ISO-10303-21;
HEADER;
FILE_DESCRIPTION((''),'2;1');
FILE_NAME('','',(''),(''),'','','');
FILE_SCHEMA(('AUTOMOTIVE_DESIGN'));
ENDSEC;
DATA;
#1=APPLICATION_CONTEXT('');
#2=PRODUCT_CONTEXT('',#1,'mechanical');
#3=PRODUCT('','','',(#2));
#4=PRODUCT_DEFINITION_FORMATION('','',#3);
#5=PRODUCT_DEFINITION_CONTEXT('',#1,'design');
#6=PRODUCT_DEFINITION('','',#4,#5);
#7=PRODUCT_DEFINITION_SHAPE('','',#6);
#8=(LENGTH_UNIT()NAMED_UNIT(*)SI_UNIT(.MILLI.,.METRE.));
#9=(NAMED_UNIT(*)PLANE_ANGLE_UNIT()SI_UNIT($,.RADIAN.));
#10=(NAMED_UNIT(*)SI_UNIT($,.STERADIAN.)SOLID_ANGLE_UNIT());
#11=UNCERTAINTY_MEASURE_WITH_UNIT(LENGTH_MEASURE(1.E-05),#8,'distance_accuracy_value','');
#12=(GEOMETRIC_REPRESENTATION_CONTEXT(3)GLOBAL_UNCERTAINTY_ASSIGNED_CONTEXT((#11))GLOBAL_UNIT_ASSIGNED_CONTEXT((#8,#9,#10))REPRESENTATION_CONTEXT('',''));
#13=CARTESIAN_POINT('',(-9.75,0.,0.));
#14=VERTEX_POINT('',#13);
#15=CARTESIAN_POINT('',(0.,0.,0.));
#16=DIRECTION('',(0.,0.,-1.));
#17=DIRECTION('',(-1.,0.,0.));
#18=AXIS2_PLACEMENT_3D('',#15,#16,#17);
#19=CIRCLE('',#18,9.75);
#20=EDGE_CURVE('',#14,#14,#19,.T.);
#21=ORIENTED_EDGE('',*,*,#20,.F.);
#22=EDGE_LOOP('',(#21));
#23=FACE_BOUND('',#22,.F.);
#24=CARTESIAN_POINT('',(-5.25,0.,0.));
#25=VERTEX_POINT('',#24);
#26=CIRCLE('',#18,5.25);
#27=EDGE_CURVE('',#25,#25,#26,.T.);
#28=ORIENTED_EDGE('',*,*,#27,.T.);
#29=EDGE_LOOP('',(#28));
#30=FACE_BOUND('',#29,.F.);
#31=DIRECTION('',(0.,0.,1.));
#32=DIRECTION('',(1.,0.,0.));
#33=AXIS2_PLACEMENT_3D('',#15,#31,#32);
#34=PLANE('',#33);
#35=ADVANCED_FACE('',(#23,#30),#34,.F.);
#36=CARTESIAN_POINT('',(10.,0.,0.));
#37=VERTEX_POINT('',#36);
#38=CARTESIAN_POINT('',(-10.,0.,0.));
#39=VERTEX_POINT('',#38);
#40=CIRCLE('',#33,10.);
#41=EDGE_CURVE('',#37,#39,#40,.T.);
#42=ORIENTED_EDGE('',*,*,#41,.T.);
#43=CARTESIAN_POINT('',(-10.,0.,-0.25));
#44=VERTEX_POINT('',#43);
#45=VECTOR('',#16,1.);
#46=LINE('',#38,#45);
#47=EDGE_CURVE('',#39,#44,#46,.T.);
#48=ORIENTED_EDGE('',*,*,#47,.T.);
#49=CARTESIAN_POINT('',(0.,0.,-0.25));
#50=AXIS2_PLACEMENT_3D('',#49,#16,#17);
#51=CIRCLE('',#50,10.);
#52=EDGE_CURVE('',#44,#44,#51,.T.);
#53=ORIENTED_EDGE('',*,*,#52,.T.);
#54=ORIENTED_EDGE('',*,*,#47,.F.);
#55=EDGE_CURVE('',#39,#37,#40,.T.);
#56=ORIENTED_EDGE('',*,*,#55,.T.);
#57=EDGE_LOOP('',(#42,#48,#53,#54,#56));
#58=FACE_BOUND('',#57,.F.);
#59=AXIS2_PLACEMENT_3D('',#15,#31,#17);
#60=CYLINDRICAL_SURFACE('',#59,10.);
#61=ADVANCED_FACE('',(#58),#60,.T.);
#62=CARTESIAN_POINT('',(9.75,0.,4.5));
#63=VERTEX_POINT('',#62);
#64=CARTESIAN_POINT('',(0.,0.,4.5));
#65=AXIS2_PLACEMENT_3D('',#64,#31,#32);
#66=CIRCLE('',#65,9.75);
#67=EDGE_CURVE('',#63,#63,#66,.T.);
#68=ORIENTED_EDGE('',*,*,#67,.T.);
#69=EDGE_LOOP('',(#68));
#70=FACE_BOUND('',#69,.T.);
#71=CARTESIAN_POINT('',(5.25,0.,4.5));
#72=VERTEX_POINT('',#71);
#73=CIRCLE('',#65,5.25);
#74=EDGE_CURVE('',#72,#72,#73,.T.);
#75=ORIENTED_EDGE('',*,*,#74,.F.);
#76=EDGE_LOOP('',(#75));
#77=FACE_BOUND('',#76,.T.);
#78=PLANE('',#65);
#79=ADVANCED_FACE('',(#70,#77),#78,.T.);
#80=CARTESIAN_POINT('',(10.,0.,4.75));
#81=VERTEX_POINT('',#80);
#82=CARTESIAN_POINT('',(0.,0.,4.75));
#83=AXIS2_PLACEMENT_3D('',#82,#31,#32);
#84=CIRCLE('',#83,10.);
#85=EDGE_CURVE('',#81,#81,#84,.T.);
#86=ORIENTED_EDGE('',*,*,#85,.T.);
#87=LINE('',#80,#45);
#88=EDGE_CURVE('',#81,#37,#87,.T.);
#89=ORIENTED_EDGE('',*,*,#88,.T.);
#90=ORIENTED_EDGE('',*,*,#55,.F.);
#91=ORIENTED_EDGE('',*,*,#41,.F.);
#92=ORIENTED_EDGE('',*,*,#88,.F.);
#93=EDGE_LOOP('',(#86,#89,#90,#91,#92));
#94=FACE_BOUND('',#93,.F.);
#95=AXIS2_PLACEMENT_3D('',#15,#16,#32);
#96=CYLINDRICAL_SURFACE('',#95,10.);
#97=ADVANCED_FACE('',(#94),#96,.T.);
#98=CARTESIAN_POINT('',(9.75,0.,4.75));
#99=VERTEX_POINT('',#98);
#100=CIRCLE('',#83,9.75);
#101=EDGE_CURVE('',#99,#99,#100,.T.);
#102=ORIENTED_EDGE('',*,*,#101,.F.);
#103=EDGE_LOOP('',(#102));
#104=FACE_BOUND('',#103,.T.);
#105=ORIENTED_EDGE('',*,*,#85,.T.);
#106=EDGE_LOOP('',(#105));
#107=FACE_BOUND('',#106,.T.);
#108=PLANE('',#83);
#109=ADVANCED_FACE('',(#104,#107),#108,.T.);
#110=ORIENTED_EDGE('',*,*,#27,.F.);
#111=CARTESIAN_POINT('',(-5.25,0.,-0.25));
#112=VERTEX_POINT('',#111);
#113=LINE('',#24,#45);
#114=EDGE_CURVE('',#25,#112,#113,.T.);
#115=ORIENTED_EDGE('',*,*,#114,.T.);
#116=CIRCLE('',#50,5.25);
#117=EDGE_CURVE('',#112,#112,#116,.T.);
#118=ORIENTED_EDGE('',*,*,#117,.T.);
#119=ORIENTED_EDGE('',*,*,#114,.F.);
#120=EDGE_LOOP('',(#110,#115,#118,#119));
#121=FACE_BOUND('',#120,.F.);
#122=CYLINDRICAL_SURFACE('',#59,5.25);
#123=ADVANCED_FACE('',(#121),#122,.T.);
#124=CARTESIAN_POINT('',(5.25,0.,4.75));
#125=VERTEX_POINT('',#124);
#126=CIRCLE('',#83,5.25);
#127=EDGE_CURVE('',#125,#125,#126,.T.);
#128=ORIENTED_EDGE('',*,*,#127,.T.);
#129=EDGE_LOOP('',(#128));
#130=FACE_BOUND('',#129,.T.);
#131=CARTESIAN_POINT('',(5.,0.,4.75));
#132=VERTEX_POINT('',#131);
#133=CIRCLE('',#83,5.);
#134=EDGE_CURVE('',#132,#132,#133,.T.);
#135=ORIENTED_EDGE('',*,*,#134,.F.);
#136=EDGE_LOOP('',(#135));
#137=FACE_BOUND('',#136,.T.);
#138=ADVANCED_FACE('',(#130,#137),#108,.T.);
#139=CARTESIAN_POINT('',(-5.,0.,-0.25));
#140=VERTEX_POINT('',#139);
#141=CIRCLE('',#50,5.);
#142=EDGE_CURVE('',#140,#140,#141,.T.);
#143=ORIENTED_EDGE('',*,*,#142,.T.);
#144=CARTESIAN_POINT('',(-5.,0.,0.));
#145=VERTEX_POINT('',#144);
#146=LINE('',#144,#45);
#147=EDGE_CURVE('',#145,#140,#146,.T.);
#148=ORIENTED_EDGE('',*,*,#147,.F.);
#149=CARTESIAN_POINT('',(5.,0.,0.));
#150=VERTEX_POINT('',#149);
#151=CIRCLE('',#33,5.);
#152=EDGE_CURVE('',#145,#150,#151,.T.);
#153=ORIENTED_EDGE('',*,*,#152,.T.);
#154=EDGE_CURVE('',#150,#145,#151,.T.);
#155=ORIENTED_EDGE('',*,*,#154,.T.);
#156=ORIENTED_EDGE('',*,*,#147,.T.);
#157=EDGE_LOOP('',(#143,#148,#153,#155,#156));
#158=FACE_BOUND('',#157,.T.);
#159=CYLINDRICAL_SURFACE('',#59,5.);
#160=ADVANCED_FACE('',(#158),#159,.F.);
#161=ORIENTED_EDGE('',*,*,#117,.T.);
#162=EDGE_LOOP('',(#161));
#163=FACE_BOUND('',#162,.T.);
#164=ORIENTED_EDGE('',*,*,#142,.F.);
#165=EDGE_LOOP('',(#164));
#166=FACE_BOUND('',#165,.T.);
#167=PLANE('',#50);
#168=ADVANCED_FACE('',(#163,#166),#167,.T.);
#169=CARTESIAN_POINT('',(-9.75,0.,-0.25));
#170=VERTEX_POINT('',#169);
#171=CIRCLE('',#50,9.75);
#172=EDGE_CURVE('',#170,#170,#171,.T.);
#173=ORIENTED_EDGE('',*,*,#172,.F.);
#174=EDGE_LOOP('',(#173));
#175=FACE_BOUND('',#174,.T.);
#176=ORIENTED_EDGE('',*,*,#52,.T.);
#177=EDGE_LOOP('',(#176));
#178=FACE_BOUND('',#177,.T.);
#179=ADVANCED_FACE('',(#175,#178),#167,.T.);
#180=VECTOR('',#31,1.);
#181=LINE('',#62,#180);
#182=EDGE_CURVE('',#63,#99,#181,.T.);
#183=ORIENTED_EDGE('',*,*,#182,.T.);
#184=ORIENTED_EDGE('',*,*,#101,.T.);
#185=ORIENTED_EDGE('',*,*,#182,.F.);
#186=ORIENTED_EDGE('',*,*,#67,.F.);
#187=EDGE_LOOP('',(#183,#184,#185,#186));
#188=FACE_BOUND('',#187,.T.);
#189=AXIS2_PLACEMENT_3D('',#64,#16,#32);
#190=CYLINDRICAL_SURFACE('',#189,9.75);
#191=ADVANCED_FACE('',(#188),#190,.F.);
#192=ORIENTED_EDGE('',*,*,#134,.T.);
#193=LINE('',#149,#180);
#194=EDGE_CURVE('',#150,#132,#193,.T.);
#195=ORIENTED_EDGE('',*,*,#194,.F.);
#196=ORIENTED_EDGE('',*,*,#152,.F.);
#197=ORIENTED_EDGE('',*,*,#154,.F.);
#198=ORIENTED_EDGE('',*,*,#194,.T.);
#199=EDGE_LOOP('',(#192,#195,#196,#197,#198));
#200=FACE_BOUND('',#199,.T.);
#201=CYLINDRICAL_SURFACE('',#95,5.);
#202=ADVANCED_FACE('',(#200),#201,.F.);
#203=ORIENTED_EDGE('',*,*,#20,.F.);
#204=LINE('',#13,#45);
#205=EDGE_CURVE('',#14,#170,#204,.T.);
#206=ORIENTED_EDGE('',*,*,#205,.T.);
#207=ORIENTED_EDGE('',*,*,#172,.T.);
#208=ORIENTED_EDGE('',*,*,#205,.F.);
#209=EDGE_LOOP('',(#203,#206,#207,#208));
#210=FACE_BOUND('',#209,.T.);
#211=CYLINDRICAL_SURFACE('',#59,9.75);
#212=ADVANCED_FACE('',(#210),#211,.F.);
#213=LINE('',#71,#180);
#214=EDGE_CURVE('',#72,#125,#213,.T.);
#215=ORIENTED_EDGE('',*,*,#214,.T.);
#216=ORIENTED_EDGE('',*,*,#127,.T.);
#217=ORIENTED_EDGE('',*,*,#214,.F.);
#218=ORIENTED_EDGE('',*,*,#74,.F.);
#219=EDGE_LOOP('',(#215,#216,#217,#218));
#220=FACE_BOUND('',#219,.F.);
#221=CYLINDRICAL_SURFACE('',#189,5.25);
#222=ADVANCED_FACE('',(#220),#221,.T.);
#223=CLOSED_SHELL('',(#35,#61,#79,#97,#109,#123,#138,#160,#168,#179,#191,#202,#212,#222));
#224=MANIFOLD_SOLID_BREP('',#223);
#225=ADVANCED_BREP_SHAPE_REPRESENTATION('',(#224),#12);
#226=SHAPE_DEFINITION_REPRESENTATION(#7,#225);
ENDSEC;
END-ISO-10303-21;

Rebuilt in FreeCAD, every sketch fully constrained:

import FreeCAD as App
import Part
import Sketcher

V = App.Vector

doc = App.newDocument("Part")
body = doc.addObject("PartDesign::Body", "Body")

# Sketch on XY plane
sketch1 = body.newObject("Sketcher::SketchObject", "Sketch")
sketch1.AttachmentSupport = (doc.getObject("XY_Plane"), [""])
sketch1.MapMode = "FlatFace"
sketch1.addGeometry(Part.Circle(V(0, 0, 0), V(0, 0, 1), 10), False)
sketch1.addGeometry(Part.Circle(V(0, 0, 0), V(0, 0, 1), 5), False)
sketch1.addConstraint(Sketcher.Constraint("Coincident", 0, 3, -1, 1))
sketch1.addConstraint(Sketcher.Constraint("Coincident", 1, 3, -1, 1))
sketch1.addConstraint(Sketcher.Constraint("Diameter", 0, 20.0))
sketch1.addConstraint(Sketcher.Constraint("Diameter", 1, 10.0))
pad1 = body.newObject("PartDesign::Pad", "Pad")
pad1.Profile = sketch1
pad1.Length = 4.5

# Sketch on XY plane
sketch2 = body.newObject("Sketcher::SketchObject", "Sketch001")
sketch2.AttachmentSupport = (doc.getObject("XY_Plane"), [""])
sketch2.MapMode = "FlatFace"
sketch2.AttachmentOffset = App.Placement(V(0, 0, 4.5), App.Rotation())
sketch2.addGeometry(Part.Circle(V(0, 0, 0), V(0, 0, 1), 10), False)
sketch2.addGeometry(Part.Circle(V(0, 0, 0), V(0, 0, 1), 9.75), False)
sketch2.addGeometry(Part.Circle(V(0, 0, 0), V(0, 0, 1), 5.25), False)
sketch2.addGeometry(Part.Circle(V(0, 0, 0), V(0, 0, 1), 5), False)
sketch2.addConstraint(Sketcher.Constraint("Coincident", 0, 3, -1, 1))
sketch2.addConstraint(Sketcher.Constraint("Coincident", 1, 3, -1, 1))
sketch2.addConstraint(Sketcher.Constraint("Coincident", 2, 3, -1, 1))
sketch2.addConstraint(Sketcher.Constraint("Coincident", 3, 3, -1, 1))
sketch2.addConstraint(Sketcher.Constraint("Diameter", 0, 20.0))
sketch2.addConstraint(Sketcher.Constraint("Diameter", 3, 10.0))
sketch2.addConstraint(Sketcher.Constraint("Diameter", 1, 19.5))
sketch2.addConstraint(Sketcher.Constraint("Diameter", 2, 10.5))
pad2 = body.newObject("PartDesign::Pad", "Pad001")
pad2.Profile = sketch2
pad2.Length = 0.25

# Sketch on XY plane
sketch3 = body.newObject("Sketcher::SketchObject", "Sketch002")
sketch3.AttachmentSupport = (doc.getObject("XY_Plane"), [""])
sketch3.MapMode = "FlatFace"
sketch3.addGeometry(Part.Circle(V(0, 0, 0), V(0, 0, 1), 10), False)
sketch3.addGeometry(Part.Circle(V(0, 0, 0), V(0, 0, 1), 9.75), False)
sketch3.addGeometry(Part.Circle(V(0, 0, 0), V(0, 0, 1), 5.25), False)
sketch3.addGeometry(Part.Circle(V(0, 0, 0), V(0, 0, 1), 5), False)
sketch3.addConstraint(Sketcher.Constraint("Coincident", 0, 3, -1, 1))
sketch3.addConstraint(Sketcher.Constraint("Coincident", 1, 3, -1, 1))
sketch3.addConstraint(Sketcher.Constraint("Coincident", 2, 3, -1, 1))
sketch3.addConstraint(Sketcher.Constraint("Coincident", 3, 3, -1, 1))
sketch3.addConstraint(Sketcher.Constraint("Diameter", 0, 20.0))
sketch3.addConstraint(Sketcher.Constraint("Diameter", 3, 10.0))
sketch3.addConstraint(Sketcher.Constraint("Diameter", 1, 19.5))
sketch3.addConstraint(Sketcher.Constraint("Diameter", 2, 10.5))
pad3 = body.newObject("PartDesign::Pad", "Pad002")
pad3.Profile = sketch3
pad3.Length = 0.25
pad3.Reversed = True

doc.recompute()
